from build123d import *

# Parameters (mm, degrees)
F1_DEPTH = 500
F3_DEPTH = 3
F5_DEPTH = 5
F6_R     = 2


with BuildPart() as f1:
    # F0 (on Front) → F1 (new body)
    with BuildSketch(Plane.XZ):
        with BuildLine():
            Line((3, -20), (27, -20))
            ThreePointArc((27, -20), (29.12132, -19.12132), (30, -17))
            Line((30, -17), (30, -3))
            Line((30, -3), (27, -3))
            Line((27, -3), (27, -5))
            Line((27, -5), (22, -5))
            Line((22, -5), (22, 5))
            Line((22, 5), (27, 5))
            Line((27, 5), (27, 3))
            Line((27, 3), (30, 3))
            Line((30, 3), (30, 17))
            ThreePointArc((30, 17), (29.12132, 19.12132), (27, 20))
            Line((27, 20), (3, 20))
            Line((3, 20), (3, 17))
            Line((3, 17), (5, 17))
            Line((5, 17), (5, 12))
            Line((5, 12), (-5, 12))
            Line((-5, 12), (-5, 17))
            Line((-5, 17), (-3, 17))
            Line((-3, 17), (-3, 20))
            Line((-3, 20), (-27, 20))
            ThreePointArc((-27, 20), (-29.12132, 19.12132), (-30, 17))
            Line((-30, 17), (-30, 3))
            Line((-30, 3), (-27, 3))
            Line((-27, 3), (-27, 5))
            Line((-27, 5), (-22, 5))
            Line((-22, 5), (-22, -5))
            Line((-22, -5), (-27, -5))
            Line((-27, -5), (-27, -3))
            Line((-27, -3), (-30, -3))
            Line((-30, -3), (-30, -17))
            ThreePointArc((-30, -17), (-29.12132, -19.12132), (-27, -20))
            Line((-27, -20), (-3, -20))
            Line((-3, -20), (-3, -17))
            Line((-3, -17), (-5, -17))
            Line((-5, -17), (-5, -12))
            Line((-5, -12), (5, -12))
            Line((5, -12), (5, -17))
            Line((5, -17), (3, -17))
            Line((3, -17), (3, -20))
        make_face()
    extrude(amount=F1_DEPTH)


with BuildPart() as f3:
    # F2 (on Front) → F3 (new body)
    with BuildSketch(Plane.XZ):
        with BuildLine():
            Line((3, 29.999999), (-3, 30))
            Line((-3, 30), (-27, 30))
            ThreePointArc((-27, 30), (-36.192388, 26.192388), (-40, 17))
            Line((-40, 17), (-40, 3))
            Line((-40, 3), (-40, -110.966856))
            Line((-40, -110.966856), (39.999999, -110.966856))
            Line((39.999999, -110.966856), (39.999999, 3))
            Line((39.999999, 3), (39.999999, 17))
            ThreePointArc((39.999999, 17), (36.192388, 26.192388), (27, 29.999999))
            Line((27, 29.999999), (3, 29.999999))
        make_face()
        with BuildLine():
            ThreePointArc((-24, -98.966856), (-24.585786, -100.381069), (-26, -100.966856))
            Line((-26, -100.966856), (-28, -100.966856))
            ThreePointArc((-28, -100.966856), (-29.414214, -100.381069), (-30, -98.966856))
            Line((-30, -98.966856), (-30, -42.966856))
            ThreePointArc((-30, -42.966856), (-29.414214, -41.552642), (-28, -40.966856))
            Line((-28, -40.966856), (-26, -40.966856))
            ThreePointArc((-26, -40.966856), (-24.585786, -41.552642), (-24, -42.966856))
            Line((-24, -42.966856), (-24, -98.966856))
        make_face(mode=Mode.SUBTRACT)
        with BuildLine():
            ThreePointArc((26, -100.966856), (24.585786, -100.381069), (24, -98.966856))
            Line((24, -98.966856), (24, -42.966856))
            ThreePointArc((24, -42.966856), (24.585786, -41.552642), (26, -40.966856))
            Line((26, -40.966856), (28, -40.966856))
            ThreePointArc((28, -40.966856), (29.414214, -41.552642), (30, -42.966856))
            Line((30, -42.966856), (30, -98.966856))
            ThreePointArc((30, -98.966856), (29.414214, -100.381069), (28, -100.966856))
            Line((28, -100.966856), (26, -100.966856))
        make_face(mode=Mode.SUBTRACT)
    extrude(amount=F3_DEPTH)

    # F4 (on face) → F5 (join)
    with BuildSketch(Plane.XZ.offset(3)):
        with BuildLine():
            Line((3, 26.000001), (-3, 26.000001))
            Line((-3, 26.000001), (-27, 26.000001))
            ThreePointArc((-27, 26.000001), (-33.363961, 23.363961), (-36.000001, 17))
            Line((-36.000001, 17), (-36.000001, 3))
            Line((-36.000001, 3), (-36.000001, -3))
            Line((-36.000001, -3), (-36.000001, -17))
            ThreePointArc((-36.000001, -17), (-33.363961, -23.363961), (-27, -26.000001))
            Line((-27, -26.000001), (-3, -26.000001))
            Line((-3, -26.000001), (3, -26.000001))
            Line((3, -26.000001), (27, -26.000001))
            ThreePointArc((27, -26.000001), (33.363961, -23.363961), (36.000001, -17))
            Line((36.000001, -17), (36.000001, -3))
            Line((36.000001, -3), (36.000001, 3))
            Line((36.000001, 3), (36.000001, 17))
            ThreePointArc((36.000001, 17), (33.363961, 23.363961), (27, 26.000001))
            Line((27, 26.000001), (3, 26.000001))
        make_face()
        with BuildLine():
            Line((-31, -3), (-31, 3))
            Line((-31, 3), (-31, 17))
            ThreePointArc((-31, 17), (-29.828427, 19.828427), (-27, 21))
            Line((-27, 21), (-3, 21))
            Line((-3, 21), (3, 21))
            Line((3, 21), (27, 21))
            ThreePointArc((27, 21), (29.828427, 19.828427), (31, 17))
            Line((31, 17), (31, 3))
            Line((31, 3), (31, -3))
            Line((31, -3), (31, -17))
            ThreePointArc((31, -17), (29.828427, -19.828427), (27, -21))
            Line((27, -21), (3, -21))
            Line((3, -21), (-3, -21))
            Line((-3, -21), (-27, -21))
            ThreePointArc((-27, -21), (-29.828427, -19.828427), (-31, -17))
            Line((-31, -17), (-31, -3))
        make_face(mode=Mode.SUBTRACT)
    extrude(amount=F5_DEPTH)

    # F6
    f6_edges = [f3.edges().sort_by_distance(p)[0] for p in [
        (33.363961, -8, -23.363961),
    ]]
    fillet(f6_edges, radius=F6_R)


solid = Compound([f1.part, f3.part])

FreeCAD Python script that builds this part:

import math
import FreeCAD as App
import Part
import Sketcher
from FreeCAD import Vector


def edges_at(feature, points):
    """Names of the edges that pass closest to the given points."""
    edges = feature.Shape.Edges
    near = lambda p: min(range(len(edges)), key=lambda i: edges[i].distToShape(Part.Vertex(*p))[0])
    return sorted({f"Edge{near(p) + 1}" for p in points})

doc = App.newDocument("Part")
body = doc.addObject("PartDesign::Body", "Body")

# Sketch on XZ plane
sketch1 = body.newObject("Sketcher::SketchObject", "Sketch")
sketch1.AttachmentSupport = (doc.getObject("XZ_Plane"), [""])
sketch1.MapMode = "FlatFace"
sketch1.addGeometry(Part.LineSegment(Vector(3, -20, 0), Vector(27, -20, 0)), False)
sketch1.addGeometry(Part.ArcOfCircle(Part.Circle(Vector(27, -17, 0), Vector(0, 0, 1), 3), math.radians(-90), math.radians(0)), False)
sketch1.addGeometry(Part.LineSegment(Vector(30, -17, 0), Vector(30, -3, 0)), False)
sketch1.addGeometry(Part.LineSegment(Vector(30, -3, 0), Vector(27, -3, 0)), False)
sketch1.addGeometry(Part.LineSegment(Vector(27, -3, 0), Vector(27, -5, 0)), False)
sketch1.addGeometry(Part.LineSegment(Vector(27, -5, 0), Vector(22, -5, 0)), False)
sketch1.addGeometry(Part.LineSegment(Vector(22, -5, 0), Vector(22, 5, 0)), False)
sketch1.addGeometry(Part.LineSegment(Vector(22, 5, 0), Vector(27, 5, 0)), False)
sketch1.addGeometry(Part.LineSegment(Vector(27, 5, 0), Vector(27, 3, 0)), False)
sketch1.addGeometry(Part.LineSegment(Vector(27, 3, 0), Vector(30, 3, 0)), False)
sketch1.addGeometry(Part.LineSegment(Vector(30, 3, 0), Vector(30, 17, 0)), False)
sketch1.addGeometry(Part.ArcOfCircle(Part.Circle(Vector(27, 17, 0), Vector(0, 0, 1), 3), math.radians(0), math.radians(90)), False)
sketch1.addGeometry(Part.LineSegment(Vector(27, 20, 0), Vector(3, 20, 0)), False)
sketch1.addGeometry(Part.LineSegment(Vector(3, 20, 0), Vector(3, 17, 0)), False)
sketch1.addGeometry(Part.LineSegment(Vector(3, 17, 0), Vector(5, 17, 0)), False)
sketch1.addGeometry(Part.LineSegment(Vector(5, 17, 0), Vector(5, 12, 0)), False)
sketch1.addGeometry(Part.LineSegment(Vector(5, 12, 0), Vector(-5, 12, 0)), False)
sketch1.addGeometry(Part.LineSegment(Vector(-5, 12, 0), Vector(-5, 17, 0)), False)
sketch1.addGeometry(Part.LineSegment(Vector(-5, 17, 0), Vector(-3, 17, 0)), False)
sketch1.addGeometry(Part.LineSegment(Vector(-3, 17, 0), Vector(-3, 20, 0)), False)
sketch1.addGeometry(Part.LineSegment(Vector(-3, 20, 0), Vector(-27, 20, 0)), False)
sketch1.addGeometry(Part.ArcOfCircle(Part.Circle(Vector(-27, 17, 0), Vector(0, 0, 1), 3), math.radians(90), math.radians(180)), False)
sketch1.addGeometry(Part.LineSegment(Vector(-30, 17, 0), Vector(-30, 3, 0)), False)
sketch1.addGeometry(Part.LineSegment(Vector(-30, 3, 0), Vector(-27, 3, 0)), False)
sketch1.addGeometry(Part.LineSegment(Vector(-27, 3, 0), Vector(-27, 5, 0)), False)
sketch1.addGeometry(Part.LineSegment(Vector(-27, 5, 0), Vector(-22, 5, 0)), False)
sketch1.addGeometry(Part.LineSegment(Vector(-22, 5, 0), Vector(-22, -5, 0)), False)
sketch1.addGeometry(Part.LineSegment(Vector(-22, -5, 0), Vector(-27, -5, 0)), False)
sketch1.addGeometry(Part.LineSegment(Vector(-27, -5, 0), Vector(-27, -3, 0)), False)
sketch1.addGeometry(Part.LineSegment(Vector(-27, -3, 0), Vector(-30, -3, 0)), False)
sketch1.addGeometry(Part.LineSegment(Vector(-30, -3, 0), Vector(-30, -17, 0)), False)
sketch1.addGeometry(Part.ArcOfCircle(Part.Circle(Vector(-27, -17, 0), Vector(0, 0, 1), 3), math.radians(-180), math.radians(-90)), False)
sketch1.addGeometry(Part.LineSegment(Vector(-27, -20, 0), Vector(-3, -20, 0)), False)
sketch1.addGeometry(Part.LineSegment(Vector(-3, -20, 0), Vector(-3, -17, 0)), False)
sketch1.addGeometry(Part.LineSegment(Vector(-3, -17, 0), Vector(-5, -17, 0)), False)
sketch1.addGeometry(Part.LineSegment(Vector(-5, -17, 0), Vector(-5, -12, 0)), False)
sketch1.addGeometry(Part.LineSegment(Vector(-5, -12, 0), Vector(5, -12, 0)), False)
sketch1.addGeometry(Part.LineSegment(Vector(5, -12, 0), Vector(5, -17, 0)), False)
sketch1.addGeometry(Part.LineSegment(Vector(5, -17, 0), Vector(3, -17, 0)), False)
sketch1.addGeometry(Part.LineSegment(Vector(3, -17, 0), Vector(3, -20, 0)), False)
sketch1.addConstraint(Sketcher.Constraint("Tangent", 0, 2, 1, 1))
sketch1.addConstraint(Sketcher.Constraint("Tangent", 1, 2, 2, 1))
sketch1.addConstraint(Sketcher.Constraint("Coincident", 2, 2, 3, 1))
sketch1.addConstraint(Sketcher.Constraint("Coincident", 3, 2, 4, 1))
sketch1.addConstraint(Sketcher.Constraint("Coincident", 4, 2, 5, 1))
sketch1.addConstraint(Sketcher.Constraint("Coincident", 5, 2, 6, 1))
sketch1.addConstraint(Sketcher.Constraint("Coincident", 6, 2, 7, 1))
sketch1.addConstraint(Sketcher.Constraint("Coincident", 7, 2, 8, 1))
sketch1.addConstraint(Sketcher.Constraint("Coincident", 8, 2, 9, 1))
sketch1.addConstraint(Sketcher.Constraint("Coincident", 9, 2, 10, 1))
sketch1.addConstraint(Sketcher.Constraint("Tangent", 10, 2, 11, 1))
sketch1.addConstraint(Sketcher.Constraint("Tangent", 11, 2, 12, 1))
sketch1.addConstraint(Sketcher.Constraint("Coincident", 12, 2, 13, 1))
sketch1.addConstraint(Sketcher.Constraint("Coincident", 13, 2, 14, 1))
sketch1.addConstraint(Sketcher.Constraint("Coincident", 14, 2, 15, 1))
sketch1.addConstraint(Sketcher.Constraint("Coincident", 15, 2, 16, 1))
sketch1.addConstraint(Sketcher.Constraint("Coincident", 16, 2, 17, 1))
sketch1.addConstraint(Sketcher.Constraint("Coincident", 17, 2, 18, 1))
sketch1.addConstraint(Sketcher.Constraint("Coincident", 18, 2, 19, 1))
sketch1.addConstraint(Sketcher.Constraint("Coincident", 19, 2, 20, 1))
sketch1.addConstraint(Sketcher.Constraint("Tangent", 20, 2, 21, 1))
sketch1.addConstraint(Sketcher.Constraint("Tangent", 21, 2, 22, 1))
sketch1.addConstraint(Sketcher.Constraint("Coincident", 22, 2, 23, 1))
sketch1.addConstraint(Sketcher.Constraint("Coincident", 23, 2, 24, 1))
sketch1.addConstraint(Sketcher.Constraint("Coincident", 24, 2, 25, 1))
sketch1.addConstraint(Sketcher.Constraint("Coincident", 25, 2, 26, 1))
sketch1.addConstraint(Sketcher.Constraint("Coincident", 26, 2, 27, 1))
sketch1.addConstraint(Sketcher.Constraint("Coincident", 27, 2, 28, 1))
sketch1.addConstraint(Sketcher.Constraint("Coincident", 28, 2, 29, 1))
sketch1.addConstraint(Sketcher.Constraint("Coincident", 29, 2, 30, 1))
sketch1.addConstraint(Sketcher.Constraint("Tangent", 30, 2, 31, 1))
sketch1.addConstraint(Sketcher.Constraint("Tangent", 31, 2, 32, 1))
sketch1.addConstraint(Sketcher.Constraint("Coincident", 32, 2, 33, 1))
sketch1.addConstraint(Sketcher.Constraint("Coincident", 33, 2, 34, 1))
sketch1.addConstraint(Sketcher.Constraint("Coincident", 34, 2, 35, 1))
sketch1.addConstraint(Sketcher.Constraint("Coincident", 35, 2, 36, 1))
sketch1.addConstraint(Sketcher.Constraint("Coincident", 36, 2, 37, 1))
sketch1.addConstraint(Sketcher.Constraint("Coincident", 37, 2, 38, 1))
sketch1.addConstraint(Sketcher.Constraint("Coincident", 38, 2, 39, 1))
sketch1.addConstraint(Sketcher.Constraint("Coincident", 39, 2, 0, 1))
sketch1.addConstraint(Sketcher.Constraint("Horizontal", 0))
sketch1.addConstraint(Sketcher.Constraint("Vertical", 2))
sketch1.addConstraint(Sketcher.Constraint("Horizontal", 3))
sketch1.addConstraint(Sketcher.Constraint("Vertical", 4))
sketch1.addConstraint(Sketcher.Constraint("Horizontal", 5))
sketch1.addConstraint(Sketcher.Constraint("Vertical", 6))
sketch1.addConstraint(Sketcher.Constraint("Horizontal", 7))
sketch1.addConstraint(Sketcher.Constraint("Vertical", 8))
sketch1.addConstraint(Sketcher.Constraint("Horizontal", 9))
sketch1.addConstraint(Sketcher.Constraint("Vertical", 10))
sketch1.addConstraint(Sketcher.Constraint("Horizontal", 12))
sketch1.addConstraint(Sketcher.Constraint("Vertical", 13))
sketch1.addConstraint(Sketcher.Constraint("Horizontal", 14))
sketch1.addConstraint(Sketcher.Constraint("Vertical", 15))
sketch1.addConstraint(Sketcher.Constraint("Horizontal", 16))
sketch1.addConstraint(Sketcher.Constraint("Vertical", 17))
sketch1.addConstraint(Sketcher.Constraint("Horizontal", 18))
sketch1.addConstraint(Sketcher.Constraint("Vertical", 19))
sketch1.addConstraint(Sketcher.Constraint("Horizontal", 20))
sketch1.addConstraint(Sketcher.Constraint("Vertical", 22))
sketch1.addConstraint(Sketcher.Constraint("Horizontal", 23))
sketch1.addConstraint(Sketcher.Constraint("Vertical", 24))
sketch1.addConstraint(Sketcher.Constraint("Horizontal", 25))
sketch1.addConstraint(Sketcher.Constraint("Vertical", 26))
sketch1.addConstraint(Sketcher.Constraint("Horizontal", 27))
sketch1.addConstraint(Sketcher.Constraint("Vertical", 28))
sketch1.addConstraint(Sketcher.Constraint("Horizontal", 29))
sketch1.addConstraint(Sketcher.Constraint("Vertical", 30))
sketch1.addConstraint(Sketcher.Constraint("Horizontal", 32))
sketch1.addConstraint(Sketcher.Constraint("Vertical", 33))
sketch1.addConstraint(Sketcher.Constraint("Horizontal", 34))
sketch1.addConstraint(Sketcher.Constraint("Vertical", 35))
sketch1.addConstraint(Sketcher.Constraint("Horizontal", 36))
sketch1.addConstraint(Sketcher.Constraint("Vertical", 37))
sketch1.addConstraint(Sketcher.Constraint("Horizontal", 38))
sketch1.addConstraint(Sketcher.Constraint("Vertical", 39))
sketch1.addConstraint(Sketcher.Constraint("Equal", 1, 11))
sketch1.addConstraint(Sketcher.Constraint("Equal", 11, 21))
sketch1.addConstraint(Sketcher.Constraint("Equal", 21, 31))
sketch1.addConstraint(Sketcher.Constraint("Symmetric", 1, 3, 21, 3, -1, 1))
sketch1.addConstraint(Sketcher.Constraint("Symmetric", 11, 3, 31, 3, -1, 1))
sketch1.addConstraint(Sketcher.Constraint("Symmetric", 3, 2, 23, 2, -1, 1))
sketch1.addConstraint(Sketcher.Constraint("Symmetric", 5, 2, 25, 2, -1, 1))
sketch1.addConstraint(Sketcher.Constraint("Symmetric", 7, 2, 27, 2, -1, 1))
sketch1.addConstraint(Sketcher.Constraint("Symmetric", 13, 2, 33, 2, -1, 1))
sketch1.addConstraint(Sketcher.Constraint("Symmetric", 15, 2, 35, 2, -1, 1))
sketch1.addConstraint(Sketcher.Constraint("Symmetric", 17, 2, 37, 2, -1, 1))
sketch1.addConstraint(Sketcher.Constraint("Symmetric", 11, 3, 21, 3, -2))
sketch1.addConstraint(Sketcher.Constraint("Symmetric", 14, 2, 17, 2, -2))
sketch1.addConstraint(Sketcher.Constraint("Symmetric", 8, 2, 23, 2, -2))
sketch1.addConstraint(Sketcher.Constraint("Horizontal", 10, 2, 13, 2))
sketch1.addConstraint(Sketcher.Constraint("Horizontal", 7, 2, 24, 2))
sketch1.addConstraint(Sketcher.Constraint("Horizontal", 3, 2, 28, 2))
sketch1.addConstraint(Sketcher.Constraint("Vertical", 0, 2, 3, 2))
sketch1.addConstraint(Sketcher.Constraint("Vertical", 19, 2, 32, 2))
sketch1.addConstraint(Sketcher.Constraint("Vertical", 13, 2, 38, 2))
sketch1.addConstraint(Sketcher.Constraint("Equal", 38, 4))
sketch1.addConstraint(Sketcher.Constraint("Equal", 36, 6))
sketch1.addConstraint(Sketcher.Constraint("Equal", 27, 15))
sketch1.addConstraint(Sketcher.Constraint("Radius", 1, 3.000001))
sketch1.addConstraint(Sketcher.Constraint("DistanceX", 0, 1, 0, 2, 24.0))
sketch1.addConstraint(Sketcher.Constraint("DistanceX", 5, 2, 5, 1, 5.0))
sketch1.addConstraint(Sketcher.Constraint("DistanceX", 14, 1, 14, 2, 2.0))
sketch1.addConstraint(Sketcher.Constraint("DistanceX", 16, 2, 16, 1, 10.0))
sketch1.addConstraint(Sketcher.Constraint("DistanceY", 2, 1, 2, 2, 14.0))
pad1 = body.newObject("PartDesign::Pad", "Pad")
pad1.Profile = sketch1
pad1.Length = 500
body2 = doc.addObject("PartDesign::Body", "Body001")

# Sketch on XZ plane
sketch2 = body2.newObject("Sketcher::SketchObject", "Sketch001")
sketch2.AttachmentSupport = (doc.getObject("XZ_Plane001"), [""])
sketch2.MapMode = "FlatFace"
sketch2.addGeometry(Part.LineSegment(Vector(3, 30, 0), Vector(-3, 30, 0)), False)
sketch2.addGeometry(Part.LineSegment(Vector(-3, 30, 0), Vector(-27, 30, 0)), False)
sketch2.addGeometry(Part.ArcOfCircle(Part.Circle(Vector(-27, 17, 0), Vector(0, 0, 1), 13), math.radians(90), math.radians(180)), False)
sketch2.addGeometry(Part.LineSegment(Vector(-40, 17, 0), Vector(-40, -111, 0)), False)
sketch2.addGeometry(Part.LineSegment(Vector(-40, -111, 0), Vector(40, -111, 0)), False)
sketch2.addGeometry(Part.LineSegment(Vector(40, -111, 0), Vector(40, 17, 0)), False)
sketch2.addGeometry(Part.ArcOfCircle(Part.Circle(Vector(27, 17, 0), Vector(0, 0, 1), 13), math.radians(0), math.radians(90)), False)
sketch2.addGeometry(Part.LineSegment(Vector(27, 30, 0), Vector(3, 30, 0)), False)
sketch2.addGeometry(Part.LineSegment(Vector(-24, -43, 0), Vector(-24, -99, 0)), False)
sketch2.addGeometry(Part.ArcOfCircle(Part.Circle(Vector(-26, -99, 0), Vector(0, 0, 1), 2), math.radians(-90), math.radians(0)), False)
sketch2.addGeometry(Part.LineSegment(Vector(-26, -101, 0), Vector(-28, -101, 0)), False)
sketch2.addGeometry(Part.ArcOfCircle(Part.Circle(Vector(-28, -99, 0), Vector(0, 0, 1), 2), math.radians(-180), math.radians(-90)), False)
sketch2.addGeometry(Part.LineSegment(Vector(-30, -99, 0), Vector(-30, -43, 0)), False)
sketch2.addGeometry(Part.ArcOfCircle(Part.Circle(Vector(-28, -43, 0), Vector(0, 0, 1), 2), math.radians(90), math.radians(180)), False)
sketch2.addGeometry(Part.LineSegment(Vector(-28, -41, 0), Vector(-26, -41, 0)), False)
sketch2.addGeometry(Part.ArcOfCircle(Part.Circle(Vector(-26, -43, 0), Vector(0, 0, 1), 2), math.radians(0), math.radians(90)), False)
sketch2.addGeometry(Part.LineSegment(Vector(28, -101, 0), Vector(26, -101, 0)), False)
sketch2.addGeometry(Part.ArcOfCircle(Part.Circle(Vector(26, -99, 0), Vector(0, 0, 1), 2), math.radians(-180), math.radians(-90)), False)
sketch2.addGeometry(Part.LineSegment(Vector(24, -99, 0), Vector(24, -43, 0)), False)
sketch2.addGeometry(Part.ArcOfCircle(Part.Circle(Vector(26, -43, 0), Vector(0, 0, 1), 2), math.radians(90), math.radians(180)), False)
sketch2.addGeometry(Part.LineSegment(Vector(26, -41, 0), Vector(28, -41, 0)), False)
sketch2.addGeometry(Part.ArcOfCircle(Part.Circle(Vector(28, -43, 0), Vector(0, 0, 1), 2), math.radians(0), math.radians(90)), False)
sketch2.addGeometry(Part.LineSegment(Vector(30, -43, 0), Vector(30, -99, 0)), False)
sketch2.addGeometry(Part.ArcOfCircle(Part.Circle(Vector(28, -99, 0), Vector(0, 0, 1), 2), math.radians(-90), math.radians(0)), False)
sketch2.addConstraint(Sketcher.Constraint("Coincident", 0, 2, 1, 1))
sketch2.addConstraint(Sketcher.Constraint("Tangent", 1, 2, 2, 1))
sketch2.addConstraint(Sketcher.Constraint("Tangent", 2, 2, 3, 1))
sketch2.addConstraint(Sketcher.Constraint("Coincident", 3, 2, 4, 1))
sketch2.addConstraint(Sketcher.Constraint("Coincident", 4, 2, 5, 1))
sketch2.addConstraint(Sketcher.Constraint("Tangent", 5, 2, 6, 1))
sketch2.addConstraint(Sketcher.Constraint("Tangent", 6, 2, 7, 1))
sketch2.addConstraint(Sketcher.Constraint("Coincident", 7, 2, 0, 1))
sketch2.addConstraint(Sketcher.Constraint("Tangent", 8, 2, 9, 2))
sketch2.addConstraint(Sketcher.Constraint("Tangent", 9, 1, 10, 1))
sketch2.addConstraint(Sketcher.Constraint("Tangent", 10, 2, 11, 2))
sketch2.addConstraint(Sketcher.Constraint("Tangent", 11, 1, 12, 1))
sketch2.addConstraint(Sketcher.Constraint("Tangent", 12, 2, 13, 2))
sketch2.addConstraint(Sketcher.Constraint("Tangent", 13, 1, 14, 1))
sketch2.addConstraint(Sketcher.Constraint("Tangent", 14, 2, 15, 2))
sketch2.addConstraint(Sketcher.Constraint("Tangent", 15, 1, 8, 1))
sketch2.addConstraint(Sketcher.Constraint("Tangent", 16, 2, 17, 2))
sketch2.addConstraint(Sketcher.Constraint("Tangent", 17, 1, 18, 1))
sketch2.addConstraint(Sketcher.Constraint("Tangent", 18, 2, 19, 2))
sketch2.addConstraint(Sketcher.Constraint("Tangent", 19, 1, 20, 1))
sketch2.addConstraint(Sketcher.Constraint("Tangent", 20, 2, 21, 2))
sketch2.addConstraint(Sketcher.Constraint("Tangent", 21, 1, 22, 1))
sketch2.addConstraint(Sketcher.Constraint("Tangent", 22, 2, 23, 2))
sketch2.addConstraint(Sketcher.Constraint("Tangent", 23, 1, 16, 1))
sketch2.addConstraint(Sketcher.Constraint("Horizontal", 0))
sketch2.addConstraint(Sketcher.Constraint("Horizontal", 1))
sketch2.addConstraint(Sketcher.Constraint("Vertical", 3))
sketch2.addConstraint(Sketcher.Constraint("Horizontal", 4))
sketch2.addConstraint(Sketcher.Constraint("Vertical", 5))
sketch2.addConstraint(Sketcher.Constraint("Horizontal", 7))
sketch2.addConstraint(Sketcher.Constraint("Vertical", 8))
sketch2.addConstraint(Sketcher.Constraint("Horizontal", 10))
sketch2.addConstraint(Sketcher.Constraint("Vertical", 12))
sketch2.addConstraint(Sketcher.Constraint("Horizontal", 14))
sketch2.addConstraint(Sketcher.Constraint("Horizontal", 16))
sketch2.addConstraint(Sketcher.Constraint("Vertical", 18))
sketch2.addConstraint(Sketcher.Constraint("Horizontal", 20))
sketch2.addConstraint(Sketcher.Constraint("Vertical", 22))
sketch2.addConstraint(Sketcher.Constraint("Equal", 9, 11))
sketch2.addConstraint(Sketcher.Constraint("Equal", 11, 13))
sketch2.addConstraint(Sketcher.Constraint("Equal", 13, 15))
sketch2.addConstraint(Sketcher.Constraint("Equal", 15, 17))
sketch2.addConstraint(Sketcher.Constraint("Equal", 17, 19))
sketch2.addConstraint(Sketcher.Constraint("Equal", 19, 21))
sketch2.addConstraint(Sketcher.Constraint("Equal", 21, 23))
sketch2.addConstraint(Sketcher.Constraint("Symmetric", 2, 3, 6, 3, -2))
sketch2.addConstraint(Sketcher.Constraint("Symmetric", 9, 3, 17, 3, -2))
sketch2.addConstraint(Sketcher.Constraint("Symmetric", 13, 3, 21, 3, -2))
sketch2.addConstraint(Sketcher.Constraint("Equal", 1, 7))
sketch2.addConstraint(Sketcher.Constraint("Radius", 2, 13.000001))
sketch2.addConstraint(Sketcher.Constraint("Radius", 9, 2.0))
sketch2.addConstraint(Sketcher.Constraint("DistanceX", 0, 2, 0, 1, 6.0))
sketch2.addConstraint(Sketcher.Constraint("DistanceX", 1, 2, 1, 1, 24.0))
sketch2.addConstraint(Sketcher.Constraint("DistanceX", 10, 2, 10, 1, 2.0))
sketch2.addConstraint(Sketcher.Constraint("DistanceY", 8, 2, 8, 1, 56.0))
sketch2.addConstraint(Sketcher.Constraint("DistanceY", -1, 1, 2, 3, 16.999999))
sketch2.addConstraint(Sketcher.Constraint("DistanceX", 9, 3, -1, 1, 26.0))
sketch2.addConstraint(Sketcher.Constraint("DistanceY", 3, 2, 11, 3, 12.0))
sketch2.addConstraint(Sketcher.Constraint("DistanceY", 3, 2, 3, 1, 127.966856))
pad2 = body2.newObject("PartDesign::Pad", "Pad001")
pad2.Profile = sketch2
pad2.Length = 3

# Sketch on XZ plane
sketch3 = body2.newObject("Sketcher::SketchObject", "Sketch002")
sketch3.AttachmentSupport = (doc.getObject("XZ_Plane001"), [""])
sketch3.MapMode = "FlatFace"
sketch3.AttachmentOffset = App.Placement(Vector(0, 0, 3), App.Rotation())
sketch3.addGeometry(Part.ArcOfCircle(Part.Circle(Vector(-27, 17, 0), Vector(0, 0, 1), 9), math.radians(90), math.radians(180)), False)
sketch3.addGeometry(Part.LineSegment(Vector(-36, 17, 0), Vector(-36, -17, 0)), False)
sketch3.addGeometry(Part.ArcOfCircle(Part.Circle(Vector(-27, -17, 0), Vector(0, 0, 1), 9), math.radians(-180), math.radians(-90)), False)
sketch3.addGeometry(Part.LineSegment(Vector(-27, -26, 0), Vector(27, -26, 0)), False)
sketch3.addGeometry(Part.ArcOfCircle(Part.Circle(Vector(27, -17, 0), Vector(0, 0, 1), 9), math.radians(-90), math.radians(0)), False)
sketch3.addGeometry(Part.LineSegment(Vector(36, -17, 0), Vector(36, 17, 0)), False)
sketch3.addGeometry(Part.ArcOfCircle(Part.Circle(Vector(27, 17, 0), Vector(0, 0, 1), 9), math.radians(0), math.radians(90)), False)
sketch3.addGeometry(Part.LineSegment(Vector(27, 26, 0), Vector(-27, 26, 0)), False)
sketch3.addGeometry(Part.LineSegment(Vector(-31, -17, 0), Vector(-31, 17, 0)), False)
sketch3.addGeometry(Part.ArcOfCircle(Part.Circle(Vector(-27, 17, 0), Vector(0, 0, 1), 4), math.radians(90), math.radians(180)), False)
sketch3.addGeometry(Part.LineSegment(Vector(-27, 21, 0), Vector(27, 21, 0)), False)
sketch3.addGeometry(Part.ArcOfCircle(Part.Circle(Vector(27, 17, 0), Vector(0, 0, 1), 4), math.radians(0), math.radians(90)), False)
sketch3.addGeometry(Part.LineSegment(Vector(31, 17, 0), Vector(31, -17, 0)), False)
sketch3.addGeometry(Part.ArcOfCircle(Part.Circle(Vector(27, -17, 0), Vector(0, 0, 1), 4), math.radians(-90), math.radians(0)), False)
sketch3.addGeometry(Part.LineSegment(Vector(27, -21, 0), Vector(-27, -21, 0)), False)
sketch3.addGeometry(Part.ArcOfCircle(Part.Circle(Vector(-27, -17, 0), Vector(0, 0, 1), 4), math.radians(-180), math.radians(-90)), False)
sketch3.addConstraint(Sketcher.Constraint("Tangent", 0, 2, 1, 1))
sketch3.addConstraint(Sketcher.Constraint("Tangent", 1, 2, 2, 1))
sketch3.addConstraint(Sketcher.Constraint("Tangent", 2, 2, 3, 1))
sketch3.addConstraint(Sketcher.Constraint("Tangent", 3, 2, 4, 1))
sketch3.addConstraint(Sketcher.Constraint("Tangent", 4, 2, 5, 1))
sketch3.addConstraint(Sketcher.Constraint("Tangent", 5, 2, 6, 1))
sketch3.addConstraint(Sketcher.Constraint("Tangent", 6, 2, 7, 1))
sketch3.addConstraint(Sketcher.Constraint("Tangent", 7, 2, 0, 1))
sketch3.addConstraint(Sketcher.Constraint("Tangent", 8, 2, 9, 2))
sketch3.addConstraint(Sketcher.Constraint("Tangent", 9, 1, 10, 1))
sketch3.addConstraint(Sketcher.Constraint("Tangent", 10, 2, 11, 2))
sketch3.addConstraint(Sketcher.Constraint("Tangent", 11, 1, 12, 1))
sketch3.addConstraint(Sketcher.Constraint("Tangent", 12, 2, 13, 2))
sketch3.addConstraint(Sketcher.Constraint("Tangent", 13, 1, 14, 1))
sketch3.addConstraint(Sketcher.Constraint("Tangent", 14, 2, 15, 2))
sketch3.addConstraint(Sketcher.Constraint("Tangent", 15, 1, 8, 1))
sketch3.addConstraint(Sketcher.Constraint("Vertical", 1))
sketch3.addConstraint(Sketcher.Constraint("Horizontal", 3))
sketch3.addConstraint(Sketcher.Constraint("Vertical", 5))
sketch3.addConstraint(Sketcher.Constraint("Horizontal", 7))
sketch3.addConstraint(Sketcher.Constraint("Vertical", 8))
sketch3.addConstraint(Sketcher.Constraint("Horizontal", 10))
sketch3.addConstraint(Sketcher.Constraint("Vertical", 12))
sketch3.addConstraint(Sketcher.Constraint("Horizontal", 14))
sketch3.addConstraint(Sketcher.Constraint("Coincident", 9, 3, 0, 3))
sketch3.addConstraint(Sketcher.Constraint("Coincident", 11, 3, 6, 3))
sketch3.addConstraint(Sketcher.Constraint("Coincident", 13, 3, 4, 3))
sketch3.addConstraint(Sketcher.Constraint("Equal", 0, 2))
sketch3.addConstraint(Sketcher.Constraint("Equal", 2, 4))
sketch3.addConstraint(Sketcher.Constraint("Equal", 4, 6))
sketch3.addConstraint(Sketcher.Constraint("Equal", 13, 15))
sketch3.addConstraint(Sketcher.Constraint("Symmetric", 0, 3, 4, 3, -1, 1))
sketch3.addConstraint(Sketcher.Constraint("Radius", 9, 4.0))
sketch3.addConstraint(Sketcher.Constraint("DistanceX", 3, 1, 3, 2, 54.0))
sketch3.addConstraint(Sketcher.Constraint("DistanceY", 1, 2, 1, 1, 34.0))
sketch3.addConstraint(Sketcher.Constraint("DistanceX", 0, 2, -1, 1, 36.000001))
pad3 = body2.newObject("PartDesign::Pad", "Pad002")
pad3.Profile = sketch3
pad3.Length = 5
doc.recompute()

fillet = body2.newObject("PartDesign::Fillet", "Fillet")
fillet.Base = (pad3, edges_at(pad3, [(33.364, -8, -23.364)]))
fillet.Radius = 2

doc.recompute()
